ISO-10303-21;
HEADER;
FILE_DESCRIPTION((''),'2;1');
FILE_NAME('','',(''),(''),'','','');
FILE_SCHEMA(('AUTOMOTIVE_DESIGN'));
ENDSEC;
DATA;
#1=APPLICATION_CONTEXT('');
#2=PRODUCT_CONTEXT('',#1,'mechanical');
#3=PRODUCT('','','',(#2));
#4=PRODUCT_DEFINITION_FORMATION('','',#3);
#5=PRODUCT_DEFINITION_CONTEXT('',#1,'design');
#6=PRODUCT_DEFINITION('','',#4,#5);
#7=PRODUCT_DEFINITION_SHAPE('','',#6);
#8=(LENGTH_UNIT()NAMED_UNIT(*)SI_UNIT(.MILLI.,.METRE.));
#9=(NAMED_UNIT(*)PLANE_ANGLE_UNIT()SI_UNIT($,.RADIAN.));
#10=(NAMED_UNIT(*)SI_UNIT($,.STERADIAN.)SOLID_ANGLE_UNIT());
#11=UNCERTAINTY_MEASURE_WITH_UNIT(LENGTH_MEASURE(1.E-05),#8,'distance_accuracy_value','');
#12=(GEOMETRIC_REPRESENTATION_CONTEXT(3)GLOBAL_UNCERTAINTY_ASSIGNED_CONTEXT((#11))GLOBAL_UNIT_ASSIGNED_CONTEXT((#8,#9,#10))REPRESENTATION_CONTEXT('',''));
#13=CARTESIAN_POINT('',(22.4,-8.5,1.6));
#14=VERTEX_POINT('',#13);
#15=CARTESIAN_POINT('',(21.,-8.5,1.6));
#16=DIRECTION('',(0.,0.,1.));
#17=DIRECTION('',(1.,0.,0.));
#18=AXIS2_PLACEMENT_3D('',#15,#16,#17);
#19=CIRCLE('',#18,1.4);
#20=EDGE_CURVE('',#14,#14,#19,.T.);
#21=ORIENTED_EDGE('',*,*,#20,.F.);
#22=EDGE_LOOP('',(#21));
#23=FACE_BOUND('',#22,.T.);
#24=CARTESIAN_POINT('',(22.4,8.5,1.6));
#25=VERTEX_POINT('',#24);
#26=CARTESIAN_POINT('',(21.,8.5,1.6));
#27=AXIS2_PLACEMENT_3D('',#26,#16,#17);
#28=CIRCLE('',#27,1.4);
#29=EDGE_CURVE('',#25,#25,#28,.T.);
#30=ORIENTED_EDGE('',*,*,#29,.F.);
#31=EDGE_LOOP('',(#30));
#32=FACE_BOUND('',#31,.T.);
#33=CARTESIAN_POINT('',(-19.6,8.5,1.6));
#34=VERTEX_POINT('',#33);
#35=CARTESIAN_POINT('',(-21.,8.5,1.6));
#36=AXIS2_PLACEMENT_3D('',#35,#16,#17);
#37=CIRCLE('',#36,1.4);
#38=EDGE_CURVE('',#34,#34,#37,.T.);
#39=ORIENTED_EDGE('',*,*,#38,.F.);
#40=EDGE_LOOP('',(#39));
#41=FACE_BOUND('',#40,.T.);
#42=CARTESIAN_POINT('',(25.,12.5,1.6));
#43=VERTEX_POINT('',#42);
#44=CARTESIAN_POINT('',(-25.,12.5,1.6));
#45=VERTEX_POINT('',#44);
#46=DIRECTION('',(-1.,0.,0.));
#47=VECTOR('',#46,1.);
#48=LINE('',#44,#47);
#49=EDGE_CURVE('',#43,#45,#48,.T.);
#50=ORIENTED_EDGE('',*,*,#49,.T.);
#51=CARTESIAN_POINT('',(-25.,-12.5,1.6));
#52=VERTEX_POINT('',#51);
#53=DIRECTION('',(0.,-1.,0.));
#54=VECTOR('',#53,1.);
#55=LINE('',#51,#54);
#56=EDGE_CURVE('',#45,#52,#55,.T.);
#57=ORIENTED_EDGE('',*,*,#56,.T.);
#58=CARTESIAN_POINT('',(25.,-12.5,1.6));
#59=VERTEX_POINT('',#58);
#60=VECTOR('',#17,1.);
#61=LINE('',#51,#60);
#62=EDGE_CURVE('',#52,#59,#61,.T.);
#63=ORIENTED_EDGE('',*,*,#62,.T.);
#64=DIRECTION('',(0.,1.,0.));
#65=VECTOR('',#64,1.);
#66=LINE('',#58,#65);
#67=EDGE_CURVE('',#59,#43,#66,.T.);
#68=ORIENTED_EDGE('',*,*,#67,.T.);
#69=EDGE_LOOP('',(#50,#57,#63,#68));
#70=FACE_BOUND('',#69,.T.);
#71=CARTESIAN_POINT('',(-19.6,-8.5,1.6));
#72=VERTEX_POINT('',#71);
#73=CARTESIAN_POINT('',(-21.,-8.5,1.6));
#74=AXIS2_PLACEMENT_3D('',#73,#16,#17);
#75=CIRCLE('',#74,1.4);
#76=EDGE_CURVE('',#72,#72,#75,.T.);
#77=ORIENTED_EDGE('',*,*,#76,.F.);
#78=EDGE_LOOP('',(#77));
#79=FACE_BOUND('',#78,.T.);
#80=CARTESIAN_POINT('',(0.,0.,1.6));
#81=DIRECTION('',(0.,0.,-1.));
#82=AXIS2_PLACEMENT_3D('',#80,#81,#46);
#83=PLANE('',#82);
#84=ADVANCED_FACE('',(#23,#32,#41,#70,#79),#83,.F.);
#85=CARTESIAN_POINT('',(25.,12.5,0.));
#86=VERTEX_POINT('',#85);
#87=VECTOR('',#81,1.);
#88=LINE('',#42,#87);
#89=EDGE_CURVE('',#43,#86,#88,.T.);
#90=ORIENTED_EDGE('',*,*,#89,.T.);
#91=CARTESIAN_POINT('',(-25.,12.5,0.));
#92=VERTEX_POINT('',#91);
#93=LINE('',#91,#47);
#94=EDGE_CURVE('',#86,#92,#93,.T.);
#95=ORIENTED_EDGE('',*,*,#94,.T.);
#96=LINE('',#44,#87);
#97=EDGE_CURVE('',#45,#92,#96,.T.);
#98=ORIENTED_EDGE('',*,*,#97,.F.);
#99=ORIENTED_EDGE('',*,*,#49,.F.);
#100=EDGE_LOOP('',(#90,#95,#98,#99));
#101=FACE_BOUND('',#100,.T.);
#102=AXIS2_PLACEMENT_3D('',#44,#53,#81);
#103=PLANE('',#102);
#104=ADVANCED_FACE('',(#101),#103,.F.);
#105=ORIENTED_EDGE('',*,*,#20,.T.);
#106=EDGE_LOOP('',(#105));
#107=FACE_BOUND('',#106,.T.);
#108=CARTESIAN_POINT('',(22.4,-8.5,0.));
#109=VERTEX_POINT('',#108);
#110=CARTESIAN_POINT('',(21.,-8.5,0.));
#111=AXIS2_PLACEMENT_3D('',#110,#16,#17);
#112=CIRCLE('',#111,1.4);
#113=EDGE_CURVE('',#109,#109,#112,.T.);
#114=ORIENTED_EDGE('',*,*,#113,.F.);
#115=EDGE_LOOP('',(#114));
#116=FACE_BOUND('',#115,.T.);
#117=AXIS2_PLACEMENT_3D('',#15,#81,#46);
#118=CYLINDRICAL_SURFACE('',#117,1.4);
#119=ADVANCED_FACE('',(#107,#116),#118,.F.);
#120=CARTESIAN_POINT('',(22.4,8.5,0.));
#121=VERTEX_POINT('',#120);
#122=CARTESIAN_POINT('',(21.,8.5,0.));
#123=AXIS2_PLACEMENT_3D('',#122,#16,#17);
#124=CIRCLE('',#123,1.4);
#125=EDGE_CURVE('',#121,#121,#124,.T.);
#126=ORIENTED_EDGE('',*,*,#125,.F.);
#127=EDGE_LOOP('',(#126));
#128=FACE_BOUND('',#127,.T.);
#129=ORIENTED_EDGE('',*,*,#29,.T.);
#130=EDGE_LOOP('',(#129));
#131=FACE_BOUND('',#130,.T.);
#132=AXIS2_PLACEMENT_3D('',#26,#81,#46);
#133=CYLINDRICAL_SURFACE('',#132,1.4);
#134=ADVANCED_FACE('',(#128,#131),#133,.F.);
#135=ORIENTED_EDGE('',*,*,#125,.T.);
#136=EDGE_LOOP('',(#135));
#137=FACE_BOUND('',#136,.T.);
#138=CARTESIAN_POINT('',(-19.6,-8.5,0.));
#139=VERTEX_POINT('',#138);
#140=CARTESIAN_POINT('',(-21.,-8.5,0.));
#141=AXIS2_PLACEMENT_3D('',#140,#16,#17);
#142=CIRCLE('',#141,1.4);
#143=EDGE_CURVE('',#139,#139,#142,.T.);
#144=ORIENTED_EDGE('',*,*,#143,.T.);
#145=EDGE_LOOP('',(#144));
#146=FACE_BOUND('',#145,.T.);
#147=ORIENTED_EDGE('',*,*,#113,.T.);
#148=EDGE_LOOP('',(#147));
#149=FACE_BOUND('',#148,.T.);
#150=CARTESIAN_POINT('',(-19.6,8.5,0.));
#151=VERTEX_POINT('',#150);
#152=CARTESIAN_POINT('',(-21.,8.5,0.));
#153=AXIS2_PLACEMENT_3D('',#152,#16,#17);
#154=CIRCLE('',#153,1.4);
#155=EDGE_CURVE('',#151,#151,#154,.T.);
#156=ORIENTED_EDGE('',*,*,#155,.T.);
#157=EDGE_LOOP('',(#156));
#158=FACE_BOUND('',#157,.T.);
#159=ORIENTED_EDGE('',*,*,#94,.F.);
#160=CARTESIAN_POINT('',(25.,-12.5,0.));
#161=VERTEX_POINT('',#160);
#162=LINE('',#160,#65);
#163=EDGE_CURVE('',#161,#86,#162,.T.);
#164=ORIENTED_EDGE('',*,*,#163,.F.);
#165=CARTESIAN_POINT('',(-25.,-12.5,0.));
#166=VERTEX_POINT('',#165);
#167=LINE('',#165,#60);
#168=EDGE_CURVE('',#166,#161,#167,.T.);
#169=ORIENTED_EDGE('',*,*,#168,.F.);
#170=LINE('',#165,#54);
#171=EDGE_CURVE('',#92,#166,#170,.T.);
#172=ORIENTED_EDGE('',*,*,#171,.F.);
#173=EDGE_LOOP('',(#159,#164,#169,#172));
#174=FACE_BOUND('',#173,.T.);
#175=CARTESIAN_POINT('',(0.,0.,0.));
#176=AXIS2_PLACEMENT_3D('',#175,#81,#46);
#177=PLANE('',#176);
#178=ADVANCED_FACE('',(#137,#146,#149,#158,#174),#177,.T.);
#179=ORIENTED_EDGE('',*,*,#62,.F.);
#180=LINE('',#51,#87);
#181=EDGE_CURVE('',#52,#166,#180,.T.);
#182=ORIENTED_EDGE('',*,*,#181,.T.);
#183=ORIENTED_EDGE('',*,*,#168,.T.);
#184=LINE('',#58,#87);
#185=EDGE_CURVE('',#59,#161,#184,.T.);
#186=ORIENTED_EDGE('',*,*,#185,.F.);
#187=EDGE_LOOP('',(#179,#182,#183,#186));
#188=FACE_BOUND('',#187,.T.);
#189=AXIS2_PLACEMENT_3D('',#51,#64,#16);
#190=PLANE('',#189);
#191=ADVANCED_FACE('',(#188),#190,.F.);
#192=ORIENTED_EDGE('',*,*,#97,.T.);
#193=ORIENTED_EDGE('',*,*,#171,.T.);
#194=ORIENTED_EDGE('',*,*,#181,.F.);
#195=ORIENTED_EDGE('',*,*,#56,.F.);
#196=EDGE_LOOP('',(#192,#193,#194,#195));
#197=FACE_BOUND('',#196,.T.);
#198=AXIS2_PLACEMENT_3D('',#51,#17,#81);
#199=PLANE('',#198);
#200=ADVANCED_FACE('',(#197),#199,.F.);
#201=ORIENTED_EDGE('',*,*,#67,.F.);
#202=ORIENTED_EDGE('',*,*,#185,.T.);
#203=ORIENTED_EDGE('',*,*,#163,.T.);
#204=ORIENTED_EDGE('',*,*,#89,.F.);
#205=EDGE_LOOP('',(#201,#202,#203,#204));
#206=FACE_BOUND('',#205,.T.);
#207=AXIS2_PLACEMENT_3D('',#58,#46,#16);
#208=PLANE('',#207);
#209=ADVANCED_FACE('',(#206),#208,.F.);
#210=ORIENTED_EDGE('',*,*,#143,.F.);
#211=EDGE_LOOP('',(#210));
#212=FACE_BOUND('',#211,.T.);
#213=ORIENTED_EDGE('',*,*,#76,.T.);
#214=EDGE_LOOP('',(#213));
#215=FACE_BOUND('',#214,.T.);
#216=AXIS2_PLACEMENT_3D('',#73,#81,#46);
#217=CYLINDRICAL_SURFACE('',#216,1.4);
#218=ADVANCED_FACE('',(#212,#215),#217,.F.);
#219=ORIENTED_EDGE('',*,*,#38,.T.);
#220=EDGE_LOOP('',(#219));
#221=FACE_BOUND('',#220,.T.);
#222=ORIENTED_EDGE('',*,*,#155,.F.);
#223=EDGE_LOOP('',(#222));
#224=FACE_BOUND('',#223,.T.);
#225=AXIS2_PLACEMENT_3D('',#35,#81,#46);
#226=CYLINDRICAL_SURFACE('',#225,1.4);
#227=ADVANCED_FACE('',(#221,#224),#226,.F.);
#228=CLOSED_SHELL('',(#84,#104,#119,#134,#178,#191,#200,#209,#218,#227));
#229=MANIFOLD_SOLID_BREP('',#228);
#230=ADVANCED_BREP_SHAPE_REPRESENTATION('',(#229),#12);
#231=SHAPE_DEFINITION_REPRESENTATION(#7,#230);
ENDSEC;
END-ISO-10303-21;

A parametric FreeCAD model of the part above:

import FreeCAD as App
import Part
import Sketcher

V = App.Vector
Q = App.Units.Quantity


def add_polygon(sketch, points):
    """Adds a closed chain of lines whose ends are joined by coincident constraints."""
    first, n = sketch.GeometryCount, len(points)
    for a, b in zip(points, points[1:] + points[:1]):
        sketch.addGeometry(Part.LineSegment(App.Vector(*a, 0), App.Vector(*b, 0)), False)
    for i in range(n):
        sketch.addConstraint(Sketcher.Constraint("Coincident", first + i, 2, first + (i + 1) % n, 1))

doc = App.newDocument("Part")
body = doc.addObject("PartDesign::Body", "Body")

sketch1 = body.newObject("Sketcher::SketchObject", "Sketch")
sketch1.AttachmentSupport = (doc.getObject("XY_Plane"), [""])
sketch1.MapMode = "FlatFace"
add_polygon(sketch1, [(-25, 12), (-25, -12), (25, -12), (25, 12)])
sketch1.addConstraint(Sketcher.Constraint("Vertical", 0))
sketch1.addConstraint(Sketcher.Constraint("Horizontal", 1))
sketch1.addConstraint(Sketcher.Constraint("Vertical", 2))
sketch1.addConstraint(Sketcher.Constraint("Horizontal", 3))
sketch1.addConstraint(Sketcher.Constraint("Symmetric", 0, 2, 2, 2, -1, 1))
sketch1.addConstraint(Sketcher.Constraint("DistanceX", 1, 1, 1, 2, Q("50 mm")))
sketch1.addConstraint(Sketcher.Constraint("DistanceY", 0, 2, 0, 1, Q("25 mm")))
pad1 = body.newObject("PartDesign::Pad", "Pad")
pad1.Profile = sketch1
pad1.Length = 1.6

sketch2 = body.newObject("Sketcher::SketchObject", "Sketch001")
sketch2.AttachmentSupport = (doc.getObject("XY_Plane"), [""])
sketch2.MapMode = "FlatFace"
sketch2.addGeometry(Part.Circle(V(-21, -8.5, 0), V(0, 0, 1), 1.4), False)
sketch2.addGeometry(Part.Circle(V(-21, 8.5, 0), V(0, 0, 1), 1.4), False)
sketch2.addGeometry(Part.Circle(V(21, -8.5, 0), V(0, 0, 1), 1.4), False)
sketch2.addGeometry(Part.Circle(V(21, 8.5, 0), V(0, 0, 1), 1.4), False)
sketch2.addConstraint(Sketcher.Constraint("Equal", 0, 1))
sketch2.addConstraint(Sketcher.Constraint("Equal", 1, 2))
sketch2.addConstraint(Sketcher.Constraint("Equal", 2, 3))
sketch2.addConstraint(Sketcher.Constraint("Symmetric", 1, 3, 2, 3, -1, 1))
sketch2.addConstraint(Sketcher.Constraint("Symmetric", 0, 3, 3, 3, -1, 1))
sketch2.addConstraint(Sketcher.Constraint("Symmetric", 0, 3, 2, 3, -2))
sketch2.addConstraint(Sketcher.Constraint("Diameter", 0, Q("2.8 mm")))
sketch2.addConstraint(Sketcher.Constraint("DistanceX", 0, 3, -1, 1, Q("21 mm")))
sketch2.addConstraint(Sketcher.Constraint("DistanceY", 0, 3, 1, 3, Q("17 mm")))
pocket1 = body.newObject("PartDesign::Pocket", "Pocket")
pocket1.Profile = sketch2
pocket1.Type = "ThroughAll"
pocket1.Reversed = True

doc.recompute()
